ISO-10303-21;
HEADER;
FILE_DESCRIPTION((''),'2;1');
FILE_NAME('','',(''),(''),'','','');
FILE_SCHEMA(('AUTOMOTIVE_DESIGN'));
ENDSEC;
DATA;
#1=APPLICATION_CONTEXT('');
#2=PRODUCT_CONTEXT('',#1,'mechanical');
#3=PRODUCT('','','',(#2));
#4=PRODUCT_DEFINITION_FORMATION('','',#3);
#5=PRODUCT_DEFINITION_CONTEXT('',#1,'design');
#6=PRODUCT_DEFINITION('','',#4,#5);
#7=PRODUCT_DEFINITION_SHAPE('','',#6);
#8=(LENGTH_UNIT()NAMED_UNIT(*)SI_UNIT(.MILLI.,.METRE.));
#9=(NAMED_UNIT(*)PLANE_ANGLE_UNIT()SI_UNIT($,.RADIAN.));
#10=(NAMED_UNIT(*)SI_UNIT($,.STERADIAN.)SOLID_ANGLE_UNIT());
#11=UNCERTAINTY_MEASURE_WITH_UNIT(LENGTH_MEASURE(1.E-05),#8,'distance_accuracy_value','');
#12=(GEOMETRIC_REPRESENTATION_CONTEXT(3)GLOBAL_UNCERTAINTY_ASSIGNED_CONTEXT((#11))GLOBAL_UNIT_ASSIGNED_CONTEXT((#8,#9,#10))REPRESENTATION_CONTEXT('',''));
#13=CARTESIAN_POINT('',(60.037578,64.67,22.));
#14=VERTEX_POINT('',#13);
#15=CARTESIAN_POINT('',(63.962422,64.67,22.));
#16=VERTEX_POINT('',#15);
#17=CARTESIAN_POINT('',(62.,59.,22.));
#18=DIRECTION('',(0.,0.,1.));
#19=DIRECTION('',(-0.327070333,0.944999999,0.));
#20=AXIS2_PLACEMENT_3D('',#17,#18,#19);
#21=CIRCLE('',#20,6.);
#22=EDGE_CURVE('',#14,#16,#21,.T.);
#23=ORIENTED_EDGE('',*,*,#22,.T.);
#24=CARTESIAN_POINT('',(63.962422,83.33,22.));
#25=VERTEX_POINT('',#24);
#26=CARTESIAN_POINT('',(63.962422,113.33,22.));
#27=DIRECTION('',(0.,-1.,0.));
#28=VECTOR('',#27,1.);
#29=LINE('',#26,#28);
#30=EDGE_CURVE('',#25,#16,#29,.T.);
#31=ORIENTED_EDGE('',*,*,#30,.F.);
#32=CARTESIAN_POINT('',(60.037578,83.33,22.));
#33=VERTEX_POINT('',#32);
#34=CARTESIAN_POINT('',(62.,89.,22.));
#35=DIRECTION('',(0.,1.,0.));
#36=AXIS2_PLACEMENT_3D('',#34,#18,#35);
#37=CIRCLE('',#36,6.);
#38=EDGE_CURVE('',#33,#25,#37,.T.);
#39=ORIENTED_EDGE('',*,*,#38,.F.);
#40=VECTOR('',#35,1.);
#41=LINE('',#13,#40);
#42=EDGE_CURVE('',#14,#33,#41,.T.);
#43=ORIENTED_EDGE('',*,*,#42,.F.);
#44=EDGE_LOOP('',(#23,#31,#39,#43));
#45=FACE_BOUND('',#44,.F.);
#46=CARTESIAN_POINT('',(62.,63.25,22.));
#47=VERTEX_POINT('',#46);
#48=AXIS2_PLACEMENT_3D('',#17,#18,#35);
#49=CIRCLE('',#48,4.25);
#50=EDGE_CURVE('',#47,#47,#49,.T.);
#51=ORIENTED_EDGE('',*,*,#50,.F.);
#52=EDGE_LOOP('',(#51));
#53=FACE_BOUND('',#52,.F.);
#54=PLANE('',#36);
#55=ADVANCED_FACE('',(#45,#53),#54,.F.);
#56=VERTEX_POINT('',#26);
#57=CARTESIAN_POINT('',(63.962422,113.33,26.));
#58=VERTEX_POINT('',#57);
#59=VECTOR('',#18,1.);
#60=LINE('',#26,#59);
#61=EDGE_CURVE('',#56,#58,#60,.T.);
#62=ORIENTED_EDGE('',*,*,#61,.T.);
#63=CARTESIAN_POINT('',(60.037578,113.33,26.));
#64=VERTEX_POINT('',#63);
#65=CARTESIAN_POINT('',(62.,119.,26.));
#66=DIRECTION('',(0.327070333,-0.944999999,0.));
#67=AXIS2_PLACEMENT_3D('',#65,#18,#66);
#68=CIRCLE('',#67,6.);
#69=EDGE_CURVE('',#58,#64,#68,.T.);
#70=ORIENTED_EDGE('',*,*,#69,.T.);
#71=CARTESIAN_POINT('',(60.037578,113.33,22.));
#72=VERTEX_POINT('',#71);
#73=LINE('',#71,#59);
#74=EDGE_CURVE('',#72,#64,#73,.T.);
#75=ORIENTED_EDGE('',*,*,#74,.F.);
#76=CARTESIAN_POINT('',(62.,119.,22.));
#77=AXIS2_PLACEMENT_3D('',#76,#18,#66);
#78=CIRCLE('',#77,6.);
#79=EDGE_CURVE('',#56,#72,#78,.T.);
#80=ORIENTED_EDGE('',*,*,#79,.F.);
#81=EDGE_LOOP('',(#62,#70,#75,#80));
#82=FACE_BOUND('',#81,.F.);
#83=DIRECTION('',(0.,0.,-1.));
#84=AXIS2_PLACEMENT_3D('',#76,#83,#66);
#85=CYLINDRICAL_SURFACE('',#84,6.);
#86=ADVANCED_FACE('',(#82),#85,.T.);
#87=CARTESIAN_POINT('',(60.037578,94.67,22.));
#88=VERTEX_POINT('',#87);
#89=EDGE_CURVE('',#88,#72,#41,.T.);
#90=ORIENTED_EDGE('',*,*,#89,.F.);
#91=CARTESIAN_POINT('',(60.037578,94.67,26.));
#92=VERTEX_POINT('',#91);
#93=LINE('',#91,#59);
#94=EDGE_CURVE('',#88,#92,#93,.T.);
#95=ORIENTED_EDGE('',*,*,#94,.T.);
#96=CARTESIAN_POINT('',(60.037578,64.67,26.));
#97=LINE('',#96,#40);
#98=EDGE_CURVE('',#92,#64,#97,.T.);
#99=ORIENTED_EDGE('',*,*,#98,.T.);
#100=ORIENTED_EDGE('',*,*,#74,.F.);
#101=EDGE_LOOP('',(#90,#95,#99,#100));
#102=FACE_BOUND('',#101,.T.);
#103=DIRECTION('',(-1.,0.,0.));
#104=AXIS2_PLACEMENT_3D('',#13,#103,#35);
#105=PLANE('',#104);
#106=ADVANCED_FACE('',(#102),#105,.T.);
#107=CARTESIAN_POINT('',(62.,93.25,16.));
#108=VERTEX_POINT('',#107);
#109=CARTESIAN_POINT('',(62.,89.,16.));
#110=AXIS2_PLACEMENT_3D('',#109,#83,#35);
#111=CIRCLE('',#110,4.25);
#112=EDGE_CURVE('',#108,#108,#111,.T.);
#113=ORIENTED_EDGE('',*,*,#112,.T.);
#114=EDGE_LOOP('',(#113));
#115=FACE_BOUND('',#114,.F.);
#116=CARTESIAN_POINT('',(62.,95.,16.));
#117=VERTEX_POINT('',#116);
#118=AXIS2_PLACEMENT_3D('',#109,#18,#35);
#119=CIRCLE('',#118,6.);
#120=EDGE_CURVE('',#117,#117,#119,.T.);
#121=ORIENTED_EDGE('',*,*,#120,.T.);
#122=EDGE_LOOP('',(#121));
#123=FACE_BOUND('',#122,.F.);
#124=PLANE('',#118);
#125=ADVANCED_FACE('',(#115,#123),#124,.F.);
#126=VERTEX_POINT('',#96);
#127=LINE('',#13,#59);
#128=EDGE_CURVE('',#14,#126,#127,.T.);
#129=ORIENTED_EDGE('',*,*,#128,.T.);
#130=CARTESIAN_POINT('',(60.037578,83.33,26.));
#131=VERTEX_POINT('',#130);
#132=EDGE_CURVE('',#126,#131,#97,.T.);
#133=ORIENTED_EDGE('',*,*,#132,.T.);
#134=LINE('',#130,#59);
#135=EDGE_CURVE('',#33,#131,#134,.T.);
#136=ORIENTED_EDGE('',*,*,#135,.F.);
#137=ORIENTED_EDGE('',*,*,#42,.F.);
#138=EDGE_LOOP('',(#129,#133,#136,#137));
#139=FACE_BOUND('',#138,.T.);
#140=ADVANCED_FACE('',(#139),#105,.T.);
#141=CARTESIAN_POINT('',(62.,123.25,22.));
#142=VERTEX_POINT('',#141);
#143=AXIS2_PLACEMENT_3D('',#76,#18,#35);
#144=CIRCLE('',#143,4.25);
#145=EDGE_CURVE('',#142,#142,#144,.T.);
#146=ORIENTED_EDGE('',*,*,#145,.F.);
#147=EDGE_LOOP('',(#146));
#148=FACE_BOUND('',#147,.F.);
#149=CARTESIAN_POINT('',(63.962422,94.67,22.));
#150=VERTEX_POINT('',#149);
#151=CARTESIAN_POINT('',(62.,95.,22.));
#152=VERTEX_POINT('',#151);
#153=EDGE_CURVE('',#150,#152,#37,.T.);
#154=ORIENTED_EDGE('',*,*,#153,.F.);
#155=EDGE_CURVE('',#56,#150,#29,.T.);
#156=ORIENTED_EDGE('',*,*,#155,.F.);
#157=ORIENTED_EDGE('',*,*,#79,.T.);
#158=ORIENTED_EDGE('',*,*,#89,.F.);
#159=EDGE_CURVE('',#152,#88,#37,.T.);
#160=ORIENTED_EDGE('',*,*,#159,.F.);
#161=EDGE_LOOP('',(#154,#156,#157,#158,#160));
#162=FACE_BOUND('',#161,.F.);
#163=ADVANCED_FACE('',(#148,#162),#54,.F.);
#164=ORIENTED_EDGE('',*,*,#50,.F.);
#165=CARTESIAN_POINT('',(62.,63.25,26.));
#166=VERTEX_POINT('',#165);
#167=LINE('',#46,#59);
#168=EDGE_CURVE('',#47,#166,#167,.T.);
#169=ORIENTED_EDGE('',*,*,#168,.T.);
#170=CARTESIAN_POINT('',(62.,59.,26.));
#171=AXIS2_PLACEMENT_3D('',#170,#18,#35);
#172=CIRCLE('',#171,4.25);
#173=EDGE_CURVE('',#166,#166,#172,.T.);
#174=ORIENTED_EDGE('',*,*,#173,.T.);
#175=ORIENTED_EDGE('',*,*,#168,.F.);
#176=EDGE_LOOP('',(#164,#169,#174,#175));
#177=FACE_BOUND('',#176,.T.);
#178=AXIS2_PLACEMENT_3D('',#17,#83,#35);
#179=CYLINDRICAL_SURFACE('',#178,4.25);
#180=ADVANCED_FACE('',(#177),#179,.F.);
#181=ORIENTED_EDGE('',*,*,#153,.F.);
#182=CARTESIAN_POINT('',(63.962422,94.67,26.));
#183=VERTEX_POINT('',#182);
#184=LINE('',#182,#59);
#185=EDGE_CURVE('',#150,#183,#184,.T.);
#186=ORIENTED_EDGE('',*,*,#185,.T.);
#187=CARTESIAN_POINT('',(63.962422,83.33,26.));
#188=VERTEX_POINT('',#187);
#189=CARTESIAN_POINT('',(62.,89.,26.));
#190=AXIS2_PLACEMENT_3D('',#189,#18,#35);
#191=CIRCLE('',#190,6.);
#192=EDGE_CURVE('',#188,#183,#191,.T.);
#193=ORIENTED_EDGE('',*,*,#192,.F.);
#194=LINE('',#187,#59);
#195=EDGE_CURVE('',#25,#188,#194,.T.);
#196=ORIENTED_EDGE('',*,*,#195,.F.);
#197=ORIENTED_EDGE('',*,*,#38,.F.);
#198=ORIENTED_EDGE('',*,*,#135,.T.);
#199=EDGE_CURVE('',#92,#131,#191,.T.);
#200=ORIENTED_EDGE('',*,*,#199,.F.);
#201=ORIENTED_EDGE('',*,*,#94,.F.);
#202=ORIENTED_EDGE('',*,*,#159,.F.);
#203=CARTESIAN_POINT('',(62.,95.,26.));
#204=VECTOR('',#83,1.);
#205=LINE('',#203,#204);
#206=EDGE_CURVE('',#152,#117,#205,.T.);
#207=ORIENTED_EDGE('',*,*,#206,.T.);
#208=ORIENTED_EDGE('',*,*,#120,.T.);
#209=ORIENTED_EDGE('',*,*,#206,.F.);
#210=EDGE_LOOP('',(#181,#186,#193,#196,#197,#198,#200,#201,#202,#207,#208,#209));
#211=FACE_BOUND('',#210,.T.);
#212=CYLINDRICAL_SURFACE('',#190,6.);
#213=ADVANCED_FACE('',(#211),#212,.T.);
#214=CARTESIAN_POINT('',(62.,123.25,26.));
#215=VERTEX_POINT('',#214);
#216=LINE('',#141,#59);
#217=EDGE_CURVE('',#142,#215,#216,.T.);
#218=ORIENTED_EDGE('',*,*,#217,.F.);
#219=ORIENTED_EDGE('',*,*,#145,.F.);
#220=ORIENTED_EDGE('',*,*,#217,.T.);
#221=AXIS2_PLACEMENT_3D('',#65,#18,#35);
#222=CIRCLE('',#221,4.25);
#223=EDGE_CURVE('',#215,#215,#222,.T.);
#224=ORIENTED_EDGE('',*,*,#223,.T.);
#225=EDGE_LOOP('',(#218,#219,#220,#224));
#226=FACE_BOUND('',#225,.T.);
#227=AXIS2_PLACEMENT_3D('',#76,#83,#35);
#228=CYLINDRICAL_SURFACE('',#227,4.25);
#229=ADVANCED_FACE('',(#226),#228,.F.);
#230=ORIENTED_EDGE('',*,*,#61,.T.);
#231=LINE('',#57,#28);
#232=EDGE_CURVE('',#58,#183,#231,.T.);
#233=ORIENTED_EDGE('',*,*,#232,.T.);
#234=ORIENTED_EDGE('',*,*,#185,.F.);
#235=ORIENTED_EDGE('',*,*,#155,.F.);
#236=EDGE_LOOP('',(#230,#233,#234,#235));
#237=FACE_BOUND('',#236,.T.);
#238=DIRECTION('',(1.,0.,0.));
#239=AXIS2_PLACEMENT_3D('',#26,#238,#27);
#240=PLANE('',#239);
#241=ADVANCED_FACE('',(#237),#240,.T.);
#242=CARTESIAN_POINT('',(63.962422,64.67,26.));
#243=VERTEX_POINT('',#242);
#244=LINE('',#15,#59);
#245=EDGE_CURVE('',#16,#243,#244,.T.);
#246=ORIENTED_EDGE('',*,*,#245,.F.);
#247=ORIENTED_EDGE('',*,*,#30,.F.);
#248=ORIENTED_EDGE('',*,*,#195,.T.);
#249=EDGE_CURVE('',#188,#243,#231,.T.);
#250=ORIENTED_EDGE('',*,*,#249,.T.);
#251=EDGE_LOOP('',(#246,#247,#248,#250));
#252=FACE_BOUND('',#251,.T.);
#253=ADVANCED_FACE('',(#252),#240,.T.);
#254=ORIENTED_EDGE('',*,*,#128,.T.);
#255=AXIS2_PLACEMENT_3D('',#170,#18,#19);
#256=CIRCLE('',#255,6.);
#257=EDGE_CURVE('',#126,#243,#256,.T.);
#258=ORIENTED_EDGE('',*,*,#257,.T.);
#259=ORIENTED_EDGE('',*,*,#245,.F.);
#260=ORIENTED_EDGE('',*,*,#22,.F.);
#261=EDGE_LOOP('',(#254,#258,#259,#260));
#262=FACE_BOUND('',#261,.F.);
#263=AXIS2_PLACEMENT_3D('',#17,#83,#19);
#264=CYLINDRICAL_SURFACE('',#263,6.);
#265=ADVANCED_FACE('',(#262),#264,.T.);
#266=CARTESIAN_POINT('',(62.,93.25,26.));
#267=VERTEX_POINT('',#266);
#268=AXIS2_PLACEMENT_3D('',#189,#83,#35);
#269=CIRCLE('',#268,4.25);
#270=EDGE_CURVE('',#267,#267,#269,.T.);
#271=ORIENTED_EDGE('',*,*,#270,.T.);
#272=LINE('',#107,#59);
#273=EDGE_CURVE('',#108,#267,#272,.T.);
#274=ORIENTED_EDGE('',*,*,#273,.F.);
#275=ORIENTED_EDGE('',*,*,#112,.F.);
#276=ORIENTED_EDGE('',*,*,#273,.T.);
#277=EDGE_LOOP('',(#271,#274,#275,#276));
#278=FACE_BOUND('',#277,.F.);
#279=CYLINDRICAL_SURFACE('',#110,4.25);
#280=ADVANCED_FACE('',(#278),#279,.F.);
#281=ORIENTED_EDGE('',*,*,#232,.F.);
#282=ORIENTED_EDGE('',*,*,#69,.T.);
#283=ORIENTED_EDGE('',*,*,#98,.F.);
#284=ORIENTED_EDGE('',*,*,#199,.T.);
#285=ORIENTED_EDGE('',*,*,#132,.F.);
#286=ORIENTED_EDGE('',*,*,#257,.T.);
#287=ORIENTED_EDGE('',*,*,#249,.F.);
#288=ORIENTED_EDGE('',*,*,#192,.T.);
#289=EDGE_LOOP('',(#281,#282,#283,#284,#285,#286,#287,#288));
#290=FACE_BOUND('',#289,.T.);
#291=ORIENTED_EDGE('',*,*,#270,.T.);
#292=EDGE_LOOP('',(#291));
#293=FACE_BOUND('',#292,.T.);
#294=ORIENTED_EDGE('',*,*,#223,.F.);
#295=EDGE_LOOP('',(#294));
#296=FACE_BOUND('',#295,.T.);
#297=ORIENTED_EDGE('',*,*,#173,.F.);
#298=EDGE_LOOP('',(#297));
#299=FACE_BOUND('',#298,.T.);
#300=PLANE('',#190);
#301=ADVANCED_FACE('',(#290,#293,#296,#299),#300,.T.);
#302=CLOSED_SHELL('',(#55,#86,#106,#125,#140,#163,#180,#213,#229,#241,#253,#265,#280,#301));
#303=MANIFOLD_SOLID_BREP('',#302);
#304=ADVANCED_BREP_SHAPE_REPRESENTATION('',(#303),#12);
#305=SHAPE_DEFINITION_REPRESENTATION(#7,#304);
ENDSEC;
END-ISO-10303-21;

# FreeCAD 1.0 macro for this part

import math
import FreeCAD as App
import Part
import Sketcher

V = App.Vector

doc = App.newDocument("Part")
body = doc.addObject("PartDesign::Body", "Body")

# Sketch on XY plane
sketch1 = body.newObject("Sketcher::SketchObject", "Sketch")
sketch1.AttachmentSupport = (doc.getObject("XY_Plane"), [""])
sketch1.MapMode = "FlatFace"
sketch1.addGeometry([
    Part.ArcOfCircle(Part.Circle(V(0, 0, 0), V(0, 0, 1), 6), math.radians(19.091053), math.radians(340.908947)),  # 0
    Part.LineSegment(V(5.67, -1.962422, 0), V(54.33, -1.962422, 0)),  # 1
    Part.ArcOfCircle(Part.Circle(V(60, 0, 0), V(0, 0, 1), 6), math.radians(-160.908947), math.radians(160.908947)),  # 2
    Part.LineSegment(V(54.33, 1.962422, 0), V(5.67, 1.962422, 0)),  # 3
    Part.Circle(V(0, 0, 0), V(0, 0, 1), 4.25),  # 4
    Part.Circle(V(60, 0, 0), V(0, 0, 1), 4.25),  # 5
], False)
sketch1.addConstraint([
    Sketcher.Constraint("Coincident", 0, 2, 1, 1),
    Sketcher.Constraint("Coincident", 1, 2, 2, 1),
    Sketcher.Constraint("Coincident", 2, 2, 3, 1),
    Sketcher.Constraint("Coincident", 3, 2, 0, 1),
    Sketcher.Constraint("Horizontal", 1),
    Sketcher.Constraint("Horizontal", 3),
    Sketcher.Constraint("Coincident", 0, 3, -1, 1),
    Sketcher.Constraint("Coincident", 4, 3, -1, 1),
    Sketcher.Constraint("Coincident", 5, 3, 2, 3),
    Sketcher.Constraint("Equal", 0, 2),
    Sketcher.Constraint("Equal", 4, 5),
    Sketcher.Constraint("Symmetric", 1, 2, 2, 2, -1),
    Sketcher.Constraint("Radius", 0, 6.0),
    Sketcher.Constraint("Diameter", 4, 8.5),
    Sketcher.Constraint("DistanceX", -1, 1, 2, 3, 60.0),
    Sketcher.Constraint("DistanceX", 1, 1, 1, 2, 48.66),
])
pad1 = body.newObject("PartDesign::Pad", "Pad")
pad1.Profile = sketch1
pad1.Length = 4

# Sketch on XY plane
sketch2 = body.newObject("Sketcher::SketchObject", "Sketch001")
sketch2.AttachmentSupport = (doc.getObject("XY_Plane"), [""])
sketch2.MapMode = "FlatFace"
sketch2.AttachmentOffset = App.Placement(V(0, 0, 4), App.Rotation())
sketch2.addGeometry(Part.Circle(V(30, 0, 0), V(0, 0, 1), 6), False)
sketch2.addConstraint([
    Sketcher.Constraint("PointOnObject", 0, 3, -1),
    Sketcher.Constraint("Diameter", 0, 12.0),
    Sketcher.Constraint("DistanceX", -1, 1, 0, 3, 30.0),
])
pad2 = body.newObject("PartDesign::Pad", "Pad001")
pad2.Profile = sketch2
pad2.Length = 10
pad2.Reversed = True

# Sketch on XY plane
sketch3 = body.newObject("Sketcher::SketchObject", "Sketch002")
sketch3.AttachmentSupport = (doc.getObject("XY_Plane"), [""])
sketch3.MapMode = "FlatFace"
sketch3.AttachmentOffset = App.Placement(V(0, 0, -6), App.Rotation())
sketch3.addGeometry(Part.Circle(V(30, 0, 0), V(0, 0, 1), 4.25), False)
sketch3.addConstraint([
    Sketcher.Constraint("PointOnObject", 0, 3, -1),
    Sketcher.Constraint("Diameter", 0, 8.5),
    Sketcher.Constraint("DistanceX", -1, 1, 0, 3, 30.0),
])
pocket1 = body.newObject("PartDesign::Pocket", "Pocket")
pocket1.Profile = sketch3
pocket1.Length = 10
pocket1.Reversed = True
body2 = doc.addObject("PartDesign::Body", "Body001")
doc.recompute()

body.Placement = App.Placement(V(62, 59, 22), App.Rotation(V(0, 0, 1), 90))
boolean = body2.newObject("PartDesign::Boolean", "Boolean")
boolean.Type = "Fuse"
boolean.addObjects([body])

doc.recompute()
